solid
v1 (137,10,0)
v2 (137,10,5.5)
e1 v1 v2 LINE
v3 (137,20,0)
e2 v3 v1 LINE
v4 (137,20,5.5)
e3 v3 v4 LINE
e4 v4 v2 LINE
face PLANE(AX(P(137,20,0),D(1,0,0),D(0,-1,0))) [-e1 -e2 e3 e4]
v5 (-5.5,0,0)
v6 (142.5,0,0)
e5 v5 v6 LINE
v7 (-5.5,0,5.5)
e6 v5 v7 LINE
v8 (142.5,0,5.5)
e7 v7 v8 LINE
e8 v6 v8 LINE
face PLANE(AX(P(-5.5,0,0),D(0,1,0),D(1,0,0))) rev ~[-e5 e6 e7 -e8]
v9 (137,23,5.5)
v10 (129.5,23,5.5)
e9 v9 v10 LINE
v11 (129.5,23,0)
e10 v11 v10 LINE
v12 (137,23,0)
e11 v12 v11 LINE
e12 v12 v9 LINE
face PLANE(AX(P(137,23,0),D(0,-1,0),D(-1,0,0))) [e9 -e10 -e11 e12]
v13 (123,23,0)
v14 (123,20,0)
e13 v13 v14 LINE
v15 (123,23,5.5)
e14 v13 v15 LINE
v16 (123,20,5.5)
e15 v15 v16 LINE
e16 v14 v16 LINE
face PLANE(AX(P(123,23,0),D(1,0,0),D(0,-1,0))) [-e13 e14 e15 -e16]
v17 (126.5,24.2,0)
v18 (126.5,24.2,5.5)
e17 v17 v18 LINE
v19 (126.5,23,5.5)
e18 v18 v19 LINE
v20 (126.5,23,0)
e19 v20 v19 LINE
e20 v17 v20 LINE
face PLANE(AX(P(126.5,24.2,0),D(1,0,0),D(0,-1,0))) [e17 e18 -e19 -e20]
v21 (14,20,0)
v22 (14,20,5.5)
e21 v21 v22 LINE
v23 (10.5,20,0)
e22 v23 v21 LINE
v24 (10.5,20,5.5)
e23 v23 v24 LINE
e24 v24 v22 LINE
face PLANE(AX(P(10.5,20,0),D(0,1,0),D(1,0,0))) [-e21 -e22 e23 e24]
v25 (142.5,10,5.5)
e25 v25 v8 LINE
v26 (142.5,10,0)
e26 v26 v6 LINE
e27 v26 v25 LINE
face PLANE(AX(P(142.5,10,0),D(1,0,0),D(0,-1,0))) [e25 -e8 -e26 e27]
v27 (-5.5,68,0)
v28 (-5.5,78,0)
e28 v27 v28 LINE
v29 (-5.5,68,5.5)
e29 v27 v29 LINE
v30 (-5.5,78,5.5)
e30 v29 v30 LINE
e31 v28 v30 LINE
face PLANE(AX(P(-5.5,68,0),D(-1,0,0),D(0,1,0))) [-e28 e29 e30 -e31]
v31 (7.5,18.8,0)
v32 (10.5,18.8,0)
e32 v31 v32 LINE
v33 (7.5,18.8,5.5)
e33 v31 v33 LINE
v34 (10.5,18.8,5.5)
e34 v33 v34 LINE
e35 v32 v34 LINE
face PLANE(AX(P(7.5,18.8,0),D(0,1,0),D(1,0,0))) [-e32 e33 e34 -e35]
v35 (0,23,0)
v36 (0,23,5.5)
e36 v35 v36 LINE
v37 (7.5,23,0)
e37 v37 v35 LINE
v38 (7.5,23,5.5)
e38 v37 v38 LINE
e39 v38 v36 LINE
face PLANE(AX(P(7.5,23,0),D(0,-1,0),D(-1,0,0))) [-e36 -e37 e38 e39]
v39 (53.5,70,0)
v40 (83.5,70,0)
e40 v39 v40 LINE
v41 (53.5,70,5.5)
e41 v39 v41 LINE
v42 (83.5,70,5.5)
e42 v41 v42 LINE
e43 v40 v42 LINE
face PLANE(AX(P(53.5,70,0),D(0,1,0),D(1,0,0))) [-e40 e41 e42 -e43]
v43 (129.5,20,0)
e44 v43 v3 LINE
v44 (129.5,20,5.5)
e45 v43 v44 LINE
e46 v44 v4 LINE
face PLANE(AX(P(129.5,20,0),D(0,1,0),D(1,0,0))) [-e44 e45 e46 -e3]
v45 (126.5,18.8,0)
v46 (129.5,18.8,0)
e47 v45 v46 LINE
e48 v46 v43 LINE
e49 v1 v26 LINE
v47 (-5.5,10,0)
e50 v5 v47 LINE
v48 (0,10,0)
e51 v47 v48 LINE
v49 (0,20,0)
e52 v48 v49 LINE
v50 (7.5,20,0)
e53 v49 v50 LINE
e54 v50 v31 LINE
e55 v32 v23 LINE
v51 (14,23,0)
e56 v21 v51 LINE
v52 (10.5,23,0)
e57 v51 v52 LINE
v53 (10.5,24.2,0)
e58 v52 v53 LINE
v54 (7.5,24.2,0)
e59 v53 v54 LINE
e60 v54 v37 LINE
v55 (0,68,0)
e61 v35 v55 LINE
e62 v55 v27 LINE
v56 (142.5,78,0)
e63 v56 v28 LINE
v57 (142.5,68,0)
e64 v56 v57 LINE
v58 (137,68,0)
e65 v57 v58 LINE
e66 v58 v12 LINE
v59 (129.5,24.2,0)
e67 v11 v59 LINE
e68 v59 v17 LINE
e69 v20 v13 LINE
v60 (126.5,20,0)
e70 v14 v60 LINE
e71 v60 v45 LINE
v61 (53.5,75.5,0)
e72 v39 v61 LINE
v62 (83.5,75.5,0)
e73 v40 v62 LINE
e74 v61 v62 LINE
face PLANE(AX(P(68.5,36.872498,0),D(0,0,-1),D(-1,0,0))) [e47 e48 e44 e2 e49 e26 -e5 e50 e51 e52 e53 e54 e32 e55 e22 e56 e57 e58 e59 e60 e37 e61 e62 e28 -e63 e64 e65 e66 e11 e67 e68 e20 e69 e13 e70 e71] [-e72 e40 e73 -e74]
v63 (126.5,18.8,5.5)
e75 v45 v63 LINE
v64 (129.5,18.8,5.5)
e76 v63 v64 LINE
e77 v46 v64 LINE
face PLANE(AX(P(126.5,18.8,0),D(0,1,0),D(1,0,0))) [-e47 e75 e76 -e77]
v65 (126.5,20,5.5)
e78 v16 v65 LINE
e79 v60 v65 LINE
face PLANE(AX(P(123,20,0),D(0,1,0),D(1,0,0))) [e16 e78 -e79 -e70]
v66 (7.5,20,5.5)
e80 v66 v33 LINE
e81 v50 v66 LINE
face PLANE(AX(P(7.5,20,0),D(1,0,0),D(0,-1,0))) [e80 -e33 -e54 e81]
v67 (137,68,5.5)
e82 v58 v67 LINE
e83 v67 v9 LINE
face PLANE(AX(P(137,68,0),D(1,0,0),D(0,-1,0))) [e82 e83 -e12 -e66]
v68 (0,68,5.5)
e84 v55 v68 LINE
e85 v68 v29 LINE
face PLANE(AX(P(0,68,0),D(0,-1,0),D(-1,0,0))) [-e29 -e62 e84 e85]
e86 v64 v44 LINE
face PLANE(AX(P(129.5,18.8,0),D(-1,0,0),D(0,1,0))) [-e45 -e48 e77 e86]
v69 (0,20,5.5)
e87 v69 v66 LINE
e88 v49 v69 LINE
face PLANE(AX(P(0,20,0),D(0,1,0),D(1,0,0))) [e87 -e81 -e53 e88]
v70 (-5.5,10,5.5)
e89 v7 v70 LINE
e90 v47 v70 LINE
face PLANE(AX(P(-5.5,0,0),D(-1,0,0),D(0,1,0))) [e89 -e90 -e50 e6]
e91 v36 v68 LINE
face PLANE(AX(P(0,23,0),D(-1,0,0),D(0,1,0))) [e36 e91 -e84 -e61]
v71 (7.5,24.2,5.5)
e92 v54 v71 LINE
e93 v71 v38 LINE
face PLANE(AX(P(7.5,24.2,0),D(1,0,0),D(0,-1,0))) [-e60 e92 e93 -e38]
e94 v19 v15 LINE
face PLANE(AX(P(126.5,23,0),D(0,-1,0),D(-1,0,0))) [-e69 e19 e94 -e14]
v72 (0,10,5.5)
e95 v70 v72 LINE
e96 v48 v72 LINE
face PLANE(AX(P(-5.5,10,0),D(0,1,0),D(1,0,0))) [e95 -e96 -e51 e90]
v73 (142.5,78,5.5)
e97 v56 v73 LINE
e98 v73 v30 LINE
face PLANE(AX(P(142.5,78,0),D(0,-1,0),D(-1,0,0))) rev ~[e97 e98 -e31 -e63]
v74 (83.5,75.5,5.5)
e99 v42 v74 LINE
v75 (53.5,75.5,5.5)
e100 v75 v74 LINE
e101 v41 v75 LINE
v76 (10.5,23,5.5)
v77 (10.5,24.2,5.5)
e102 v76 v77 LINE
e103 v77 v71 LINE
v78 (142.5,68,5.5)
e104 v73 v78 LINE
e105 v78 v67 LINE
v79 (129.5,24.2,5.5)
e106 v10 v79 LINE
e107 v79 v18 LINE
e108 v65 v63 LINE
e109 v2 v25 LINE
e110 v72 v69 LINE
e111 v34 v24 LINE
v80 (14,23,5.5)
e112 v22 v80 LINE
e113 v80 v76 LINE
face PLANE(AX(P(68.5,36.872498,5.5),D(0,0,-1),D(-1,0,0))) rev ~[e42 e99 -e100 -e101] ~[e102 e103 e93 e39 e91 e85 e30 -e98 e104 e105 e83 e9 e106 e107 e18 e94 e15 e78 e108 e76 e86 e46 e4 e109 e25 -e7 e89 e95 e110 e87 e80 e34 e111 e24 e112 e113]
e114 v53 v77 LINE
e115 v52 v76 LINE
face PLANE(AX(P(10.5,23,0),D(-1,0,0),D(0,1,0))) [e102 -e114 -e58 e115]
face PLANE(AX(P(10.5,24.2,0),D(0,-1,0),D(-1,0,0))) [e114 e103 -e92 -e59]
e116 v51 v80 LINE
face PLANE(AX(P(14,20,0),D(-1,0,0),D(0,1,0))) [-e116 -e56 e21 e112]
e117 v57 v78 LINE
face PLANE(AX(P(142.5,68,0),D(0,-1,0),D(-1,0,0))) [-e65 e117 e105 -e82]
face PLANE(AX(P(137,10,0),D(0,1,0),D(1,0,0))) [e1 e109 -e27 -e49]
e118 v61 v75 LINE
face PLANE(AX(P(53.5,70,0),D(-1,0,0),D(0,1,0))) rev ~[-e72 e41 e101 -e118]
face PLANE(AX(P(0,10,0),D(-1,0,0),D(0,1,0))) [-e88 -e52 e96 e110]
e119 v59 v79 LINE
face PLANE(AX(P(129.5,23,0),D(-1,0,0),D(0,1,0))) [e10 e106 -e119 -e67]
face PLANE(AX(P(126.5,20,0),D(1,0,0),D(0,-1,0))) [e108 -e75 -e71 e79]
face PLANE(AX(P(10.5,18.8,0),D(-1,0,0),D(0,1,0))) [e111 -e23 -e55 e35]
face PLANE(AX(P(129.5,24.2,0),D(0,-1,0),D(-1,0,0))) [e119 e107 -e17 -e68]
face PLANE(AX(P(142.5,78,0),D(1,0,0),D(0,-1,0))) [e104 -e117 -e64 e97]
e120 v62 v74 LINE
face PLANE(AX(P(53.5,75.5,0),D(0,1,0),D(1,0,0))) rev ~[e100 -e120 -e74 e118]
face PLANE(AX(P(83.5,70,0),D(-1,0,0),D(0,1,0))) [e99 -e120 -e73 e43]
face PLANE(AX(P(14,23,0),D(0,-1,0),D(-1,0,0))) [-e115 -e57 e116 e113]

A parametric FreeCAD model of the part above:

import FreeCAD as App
import Part
import Sketcher

doc = App.newDocument("Part")
body = doc.addObject("PartDesign::Body", "Body")

# Sketch on XY plane
sketch1 = body.newObject("Sketcher::SketchObject", "Sketch")
sketch1.AttachmentSupport = (doc.getObject("XY_Plane"), [""])
sketch1.MapMode = "FlatFace"
sketch1.addGeometry(Part.LineSegment(App.Vector(0, 68, 0), App.Vector(0, 23, 0)), False)
sketch1.addGeometry(Part.LineSegment(App.Vector(0, 23, 0), App.Vector(7.5, 23, 0)), False)
sketch1.addGeometry(Part.LineSegment(App.Vector(7.5, 23, 0), App.Vector(7.5, 24.2, 0)), False)
sketch1.addGeometry(Part.LineSegment(App.Vector(7.5, 24.2, 0), App.Vector(10.5, 24.2, 0)), False)
sketch1.addGeometry(Part.LineSegment(App.Vector(10.5, 24.2, 0), App.Vector(10.5, 23, 0)), False)
sketch1.addGeometry(Part.LineSegment(App.Vector(10.5, 23, 0), App.Vector(14, 23, 0)), False)
sketch1.addGeometry(Part.LineSegment(App.Vector(14, 23, 0), App.Vector(14, 20, 0)), False)
sketch1.addGeometry(Part.LineSegment(App.Vector(14, 20, 0), App.Vector(10.5, 20, 0)), False)
sketch1.addGeometry(Part.LineSegment(App.Vector(10.5, 20, 0), App.Vector(10.5, 18.8, 0)), False)
sketch1.addGeometry(Part.LineSegment(App.Vector(10.5, 18.8, 0), App.Vector(7.5, 18.8, 0)), False)
sketch1.addGeometry(Part.LineSegment(App.Vector(7.5, 18.8, 0), App.Vector(7.5, 20, 0)), False)
sketch1.addGeometry(Part.LineSegment(App.Vector(7.5, 20, 0), App.Vector(0, 20, 0)), False)
sketch1.addGeometry(Part.LineSegment(App.Vector(0, 20, 0), App.Vector(0, 10, 0)), False)
sketch1.addGeometry(Part.LineSegment(App.Vector(0, 10, 0), App.Vector(-5.5, 10, 0)), False)
sketch1.addGeometry(Part.LineSegment(App.Vector(-5.5, 10, 0), App.Vector(-5.5, 0, 0)), False)
sketch1.addGeometry(Part.LineSegment(App.Vector(-5.5, 0, 0), App.Vector(142.5, 0, 0)), False)
sketch1.addGeometry(Part.LineSegment(App.Vector(142.5, 0, 0), App.Vector(142.5, 10, 0)), False)
sketch1.addGeometry(Part.LineSegment(App.Vector(142.5, 10, 0), App.Vector(137, 10, 0)), False)
sketch1.addGeometry(Part.LineSegment(App.Vector(137, 10, 0), App.Vector(137, 20, 0)), False)
sketch1.addGeometry(Part.LineSegment(App.Vector(137, 20, 0), App.Vector(129.5, 20, 0)), False)
sketch1.addGeometry(Part.LineSegment(App.Vector(129.5, 20, 0), App.Vector(129.5, 18.8, 0)), False)
sketch1.addGeometry(Part.LineSegment(App.Vector(129.5, 18.8, 0), App.Vector(126.5, 18.8, 0)), False)
sketch1.addGeometry(Part.LineSegment(App.Vector(126.5, 18.8, 0), App.Vector(126.5, 20, 0)), False)
sketch1.addGeometry(Part.LineSegment(App.Vector(126.5, 20, 0), App.Vector(123, 20, 0)), False)
sketch1.addGeometry(Part.LineSegment(App.Vector(123, 20, 0), App.Vector(123, 23, 0)), False)
sketch1.addGeometry(Part.LineSegment(App.Vector(123, 23, 0), App.Vector(126.5, 23, 0)), False)
sketch1.addGeometry(Part.LineSegment(App.Vector(126.5, 23, 0), App.Vector(126.5, 24.2, 0)), False)
sketch1.addGeometry(Part.LineSegment(App.Vector(126.5, 24.2, 0), App.Vector(129.5, 24.2, 0)), False)
sketch1.addGeometry(Part.LineSegment(App.Vector(129.5, 24.2, 0), App.Vector(129.5, 23, 0)), False)
sketch1.addGeometry(Part.LineSegment(App.Vector(129.5, 23, 0), App.Vector(137, 23, 0)), False)
sketch1.addGeometry(Part.LineSegment(App.Vector(137, 23, 0), App.Vector(137, 68, 0)), False)
sketch1.addGeometry(Part.LineSegment(App.Vector(137, 68, 0), App.Vector(142.5, 68, 0)), False)
sketch1.addGeometry(Part.LineSegment(App.Vector(142.5, 68, 0), App.Vector(142.5, 78, 0)), False)
sketch1.addGeometry(Part.LineSegment(App.Vector(142.5, 78, 0), App.Vector(-5.5, 78, 0)), False)
sketch1.addGeometry(Part.LineSegment(App.Vector(-5.5, 78, 0), App.Vector(-5.5, 68, 0)), False)
sketch1.addGeometry(Part.LineSegment(App.Vector(-5.5, 68, 0), App.Vector(0, 68, 0)), False)
sketch1.addGeometry(Part.LineSegment(App.Vector(53.5, 70, 0), App.Vector(53.5, 75.5, 0)), False)
sketch1.addGeometry(Part.LineSegment(App.Vector(53.5, 75.5, 0), App.Vector(83.5, 75.5, 0)), False)
sketch1.addGeometry(Part.LineSegment(App.Vector(83.5, 75.5, 0), App.Vector(83.5, 70, 0)), False)
sketch1.addGeometry(Part.LineSegment(App.Vector(83.5, 70, 0), App.Vector(53.5, 70, 0)), False)
sketch1.addConstraint(Sketcher.Constraint("Coincident", 0, 2, 1, 1))
sketch1.addConstraint(Sketcher.Constraint("Coincident", 1, 2, 2, 1))
sketch1.addConstraint(Sketcher.Constraint("Coincident", 2, 2, 3, 1))
sketch1.addConstraint(Sketcher.Constraint("Coincident", 3, 2, 4, 1))
sketch1.addConstraint(Sketcher.Constraint("Coincident", 4, 2, 5, 1))
sketch1.addConstraint(Sketcher.Constraint("Coincident", 5, 2, 6, 1))
sketch1.addConstraint(Sketcher.Constraint("Coincident", 6, 2, 7, 1))
sketch1.addConstraint(Sketcher.Constraint("Coincident", 7, 2, 8, 1))
sketch1.addConstraint(Sketcher.Constraint("Coincident", 8, 2, 9, 1))
sketch1.addConstraint(Sketcher.Constraint("Coincident", 9, 2, 10, 1))
sketch1.addConstraint(Sketcher.Constraint("Coincident", 10, 2, 11, 1))
sketch1.addConstraint(Sketcher.Constraint("Coincident", 11, 2, 12, 1))
sketch1.addConstraint(Sketcher.Constraint("Coincident", 12, 2, 13, 1))
sketch1.addConstraint(Sketcher.Constraint("Coincident", 13, 2, 14, 1))
sketch1.addConstraint(Sketcher.Constraint("Coincident", 14, 2, 15, 1))
sketch1.addConstraint(Sketcher.Constraint("Coincident", 15, 2, 16, 1))
sketch1.addConstraint(Sketcher.Constraint("Coincident", 16, 2, 17, 1))
sketch1.addConstraint(Sketcher.Constraint("Coincident", 17, 2, 18, 1))
sketch1.addConstraint(Sketcher.Constraint("Coincident", 18, 2, 19, 1))
sketch1.addConstraint(Sketcher.Constraint("Coincident", 19, 2, 20, 1))
sketch1.addConstraint(Sketcher.Constraint("Coincident", 20, 2, 21, 1))
sketch1.addConstraint(Sketcher.Constraint("Coincident", 21, 2, 22, 1))
sketch1.addConstraint(Sketcher.Constraint("Coincident", 22, 2, 23, 1))
sketch1.addConstraint(Sketcher.Constraint("Coincident", 23, 2, 24, 1))
sketch1.addConstraint(Sketcher.Constraint("Coincident", 24, 2, 25, 1))
sketch1.addConstraint(Sketcher.Constraint("Coincident", 25, 2, 26, 1))
sketch1.addConstraint(Sketcher.Constraint("Coincident", 26, 2, 27, 1))
sketch1.addConstraint(Sketcher.Constraint("Coincident", 27, 2, 28, 1))
sketch1.addConstraint(Sketcher.Constraint("Coincident", 28, 2, 29, 1))
sketch1.addConstraint(Sketcher.Constraint("Coincident", 29, 2, 30, 1))
sketch1.addConstraint(Sketcher.Constraint("Coincident", 30, 2, 31, 1))
sketch1.addConstraint(Sketcher.Constraint("Coincident", 31, 2, 32, 1))
sketch1.addConstraint(Sketcher.Constraint("Coincident", 32, 2, 33, 1))
sketch1.addConstraint(Sketcher.Constraint("Coincident", 33, 2, 34, 1))
sketch1.addConstraint(Sketcher.Constraint("Coincident", 34, 2, 35, 1))
sketch1.addConstraint(Sketcher.Constraint("Coincident", 35, 2, 0, 1))
sketch1.addConstraint(Sketcher.Constraint("Coincident", 36, 2, 37, 1))
sketch1.addConstraint(Sketcher.Constraint("Coincident", 37, 2, 38, 1))
sketch1.addConstraint(Sketcher.Constraint("Coincident", 38, 2, 39, 1))
sketch1.addConstraint(Sketcher.Constraint("Coincident", 39, 2, 36, 1))
sketch1.addConstraint(Sketcher.Constraint("Vertical", 0))
sketch1.addConstraint(Sketcher.Constraint("Horizontal", 1))
sketch1.addConstraint(Sketcher.Constraint("Vertical", 2))
sketch1.addConstraint(Sketcher.Constraint("Horizontal", 3))
sketch1.addConstraint(Sketcher.Constraint("Vertical", 4))
sketch1.addConstraint(Sketcher.Constraint("Horizontal", 5))
sketch1.addConstraint(Sketcher.Constraint("Vertical", 6))
sketch1.addConstraint(Sketcher.Constraint("Horizontal", 7))
sketch1.addConstraint(Sketcher.Constraint("Vertical", 8))
sketch1.addConstraint(Sketcher.Constraint("Horizontal", 9))
sketch1.addConstraint(Sketcher.Constraint("Vertical", 10))
sketch1.addConstraint(Sketcher.Constraint("Horizontal", 11))
sketch1.addConstraint(Sketcher.Constraint("Vertical", 12))
sketch1.addConstraint(Sketcher.Constraint("Horizontal", 13))
sketch1.addConstraint(Sketcher.Constraint("Vertical", 14))
sketch1.addConstraint(Sketcher.Constraint("Horizontal", 15))
sketch1.addConstraint(Sketcher.Constraint("Vertical", 16))
sketch1.addConstraint(Sketcher.Constraint("Horizontal", 17))
sketch1.addConstraint(Sketcher.Constraint("Vertical", 18))
sketch1.addConstraint(Sketcher.Constraint("Horizontal", 19))
sketch1.addConstraint(Sketcher.Constraint("Vertical", 20))
sketch1.addConstraint(Sketcher.Constraint("Horizontal", 21))
sketch1.addConstraint(Sketcher.Constraint("Vertical", 22))
sketch1.addConstraint(Sketcher.Constraint("Horizontal", 23))
sketch1.addConstraint(Sketcher.Constraint("Vertical", 24))
sketch1.addConstraint(Sketcher.Constraint("Horizontal", 25))
sketch1.addConstraint(Sketcher.Constraint("Vertical", 26))
sketch1.addConstraint(Sketcher.Constraint("Horizontal", 27))
sketch1.addConstraint(Sketcher.Constraint("Vertical", 28))
sketch1.addConstraint(Sketcher.Constraint("Horizontal", 29))
sketch1.addConstraint(Sketcher.Constraint("Vertical", 30))
sketch1.addConstraint(Sketcher.Constraint("Horizontal", 31))
sketch1.addConstraint(Sketcher.Constraint("Vertical", 32))
sketch1.addConstraint(Sketcher.Constraint("Horizontal", 33))
sketch1.addConstraint(Sketcher.Constraint("Vertical", 34))
sketch1.addConstraint(Sketcher.Constraint("Horizontal", 35))
sketch1.addConstraint(Sketcher.Constraint("Vertical", 36))
sketch1.addConstraint(Sketcher.Constraint("Horizontal", 37))
sketch1.addConstraint(Sketcher.Constraint("Vertical", 38))
sketch1.addConstraint(Sketcher.Constraint("Horizontal", 39))
sketch1.addConstraint(Sketcher.Constraint("PointOnObject", 0, 2, -2))
sketch1.addConstraint(Sketcher.Constraint("PointOnObject", 11, 2, -2))
sketch1.addConstraint(Sketcher.Constraint("PointOnObject", 14, 2, -1))
sketch1.addConstraint(Sketcher.Constraint("Horizontal", 1, 2, 4, 2))
sketch1.addConstraint(Sketcher.Constraint("Horizontal", 7, 2, 10, 2))
sketch1.addConstraint(Sketcher.Constraint("Horizontal", 13, 2, 16, 2))
sketch1.addConstraint(Sketcher.Constraint("Horizontal", 11, 2, 18, 2))
sketch1.addConstraint(Sketcher.Constraint("Horizontal", 9, 2, 20, 2))
sketch1.addConstraint(Sketcher.Constraint("Horizontal", 19, 2, 22, 2))
sketch1.addConstraint(Sketcher.Constraint("Horizontal", 5, 2, 24, 2))
sketch1.addConstraint(Sketcher.Constraint("Horizontal", 3, 2, 26, 2))
sketch1.addConstraint(Sketcher.Constraint("Horizontal", 25, 2, 28, 2))
sketch1.addConstraint(Sketcher.Constraint("Horizontal", 31, 2, 34, 2))
sketch1.addConstraint(Sketcher.Constraint("Vertical", 4, 2, 7, 2))
sketch1.addConstraint(Sketcher.Constraint("Vertical", 2, 2, 9, 2))
sketch1.addConstraint(Sketcher.Constraint("Vertical", 22, 2, 25, 2))
sketch1.addConstraint(Sketcher.Constraint("Vertical", 20, 2, 27, 2))
sketch1.addConstraint(Sketcher.Constraint("Vertical", 18, 2, 29, 2))
sketch1.addConstraint(Sketcher.Constraint("Vertical", 16, 2, 31, 2))
sketch1.addConstraint(Sketcher.Constraint("Vertical", 14, 2, 33, 2))
sketch1.addConstraint(Sketcher.Constraint("Equal", 13, 17))
sketch1.addConstraint(Sketcher.Constraint("Equal", 11, 19))
sketch1.addConstraint(Sketcher.Constraint("Equal", 9, 21))
sketch1.addConstraint(Sketcher.Constraint("Equal", 7, 23))
sketch1.addConstraint(Sketcher.Constraint("Equal", 27, 6))
sketch1.addConstraint(Sketcher.Constraint("Equal", 4, 8))
sketch1.addConstraint(Sketcher.Constraint("Equal", 12, 14))
sketch1.addConstraint(Sketcher.Constraint("Equal", 18, 32))
sketch1.addConstraint(Sketcher.Constraint("Equal", 35, 36))
sketch1.addConstraint(Sketcher.Constraint("DistanceX", 3, 1, 3, 2, 3.0))
sketch1.addConstraint(Sketcher.Constraint("DistanceX", 15, 1, 15, 2, 148.0))
sketch1.addConstraint(Sketcher.Constraint("DistanceX", 37, 1, 37, 2, 30.0))
sketch1.addConstraint(Sketcher.Constraint("DistanceY", 0, 2, 0, 1, 45.0))
sketch1.addConstraint(Sketcher.Constraint("DistanceY", 12, 2, 12, 1, 10.0))
sketch1.addConstraint(Sketcher.Constraint("DistanceX", 1, 1, 1, 2, 7.5))
sketch1.addConstraint(Sketcher.Constraint("DistanceX", 5, 1, 5, 2, 3.5))
sketch1.addConstraint(Sketcher.Constraint("DistanceX", 13, 2, 13, 1, 5.5))
sketch1.addConstraint(Sketcher.Constraint("DistanceY", 2, 1, 2, 2, 1.2))
sketch1.addConstraint(Sketcher.Constraint("DistanceY", -1, 1, 38, 2, 70.0))
sketch1.addConstraint(Sketcher.Constraint("DistanceX", 33, 2, 36, 2, 59.0))
pad1 = body.newObject("PartDesign::Pad", "Pad")
pad1.Profile = sketch1
pad1.Length = 5.5

doc.recompute()
